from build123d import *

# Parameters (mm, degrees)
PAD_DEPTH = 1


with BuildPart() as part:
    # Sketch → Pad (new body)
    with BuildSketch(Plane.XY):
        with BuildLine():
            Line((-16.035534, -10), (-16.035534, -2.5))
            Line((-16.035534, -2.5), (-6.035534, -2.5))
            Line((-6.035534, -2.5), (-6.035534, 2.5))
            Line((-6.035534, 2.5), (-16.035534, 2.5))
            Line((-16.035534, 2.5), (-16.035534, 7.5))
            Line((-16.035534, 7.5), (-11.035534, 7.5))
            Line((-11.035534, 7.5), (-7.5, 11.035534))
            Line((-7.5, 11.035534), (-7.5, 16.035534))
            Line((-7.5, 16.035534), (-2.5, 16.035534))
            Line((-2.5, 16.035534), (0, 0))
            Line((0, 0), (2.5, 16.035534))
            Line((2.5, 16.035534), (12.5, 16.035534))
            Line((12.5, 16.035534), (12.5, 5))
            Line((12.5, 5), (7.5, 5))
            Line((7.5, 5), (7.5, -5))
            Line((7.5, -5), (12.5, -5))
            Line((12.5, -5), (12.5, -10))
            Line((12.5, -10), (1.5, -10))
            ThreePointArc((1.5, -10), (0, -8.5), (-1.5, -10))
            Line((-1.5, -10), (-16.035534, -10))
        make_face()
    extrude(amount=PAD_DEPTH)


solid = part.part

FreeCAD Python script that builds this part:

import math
import FreeCAD as App
import Part
import Sketcher

V = App.Vector
Q = App.Units.Quantity

doc = App.newDocument("Part")
body = doc.addObject("PartDesign::Body", "Body")

# Sketch on XY plane
sketch1 = body.newObject("Sketcher::SketchObject", "Sketch")
sketch1.AttachmentSupport = (doc.getObject("XY_Plane"), [""])
sketch1.MapMode = "FlatFace"
sketch1.addGeometry([
    Part.LineSegment(V(-16, -2.5, 0), V(-16, -10, 0)),  # 0
    Part.LineSegment(V(-16, -10, 0), V(-1.5, -10, 0)),  # 1
    Part.ArcOfCircle(Part.Circle(V(0, -10, 0), V(0, 0, 1), 1.5), math.radians(0), math.radians(180)),  # 2
    Part.LineSegment(V(1.5, -10, 0), V(12.5, -10, 0)),  # 3
    Part.LineSegment(V(12.5, -10, 0), V(12.5, -5, 0)),  # 4
    Part.LineSegment(V(12.5, -5, 0), V(7.5, -5, 0)),  # 5
    Part.LineSegment(V(7.5, -5, 0), V(7.5, 5, 0)),  # 6
    Part.LineSegment(V(7.5, 5, 0), V(12.5, 5, 0)),  # 7
    Part.LineSegment(V(12.5, 5, 0), V(12.5, 16, 0)),  # 8
    Part.LineSegment(V(12.5, 16, 0), V(2.5, 16, 0)),  # 9
    Part.LineSegment(V(2.5, 16, 0), V(0, 0, 0)),  # 10
    Part.LineSegment(V(0, 0, 0), V(-2.5, 16, 0)),  # 11
    Part.LineSegment(V(-2.5, 16, 0), V(-7.5, 16, 0)),  # 12
    Part.LineSegment(V(-7.5, 16, 0), V(-7.5, 11, 0)),  # 13
    Part.LineSegment(V(-7.5, 11, 0), V(-11, 7.5, 0)),  # 14
    Part.LineSegment(V(-11, 7.5, 0), V(-16, 7.5, 0)),  # 15
    Part.LineSegment(V(-16, 7.5, 0), V(-16, 2.5, 0)),  # 16
    Part.LineSegment(V(-16, 2.5, 0), V(-6, 2.5, 0)),  # 17
    Part.LineSegment(V(-6, 2.5, 0), V(-6, -2.5, 0)),  # 18
    Part.LineSegment(V(-6, -2.5, 0), V(-16, -2.5, 0)),  # 19
], False)
sketch1.addConstraint([
    Sketcher.Constraint("Coincident", 0, 2, 1, 1),
    Sketcher.Constraint("Coincident", 1, 2, 2, 2),
    Sketcher.Constraint("Coincident", 2, 1, 3, 1),
    Sketcher.Constraint("Coincident", 3, 2, 4, 1),
    Sketcher.Constraint("Coincident", 4, 2, 5, 1),
    Sketcher.Constraint("Coincident", 5, 2, 6, 1),
    Sketcher.Constraint("Coincident", 6, 2, 7, 1),
    Sketcher.Constraint("Coincident", 7, 2, 8, 1),
    Sketcher.Constraint("Coincident", 8, 2, 9, 1),
    Sketcher.Constraint("Coincident", 9, 2, 10, 1),
    Sketcher.Constraint("Coincident", 10, 2, 11, 1),
    Sketcher.Constraint("Coincident", 11, 2, 12, 1),
    Sketcher.Constraint("Coincident", 12, 2, 13, 1),
    Sketcher.Constraint("Coincident", 13, 2, 14, 1),
    Sketcher.Constraint("Coincident", 14, 2, 15, 1),
    Sketcher.Constraint("Coincident", 15, 2, 16, 1),
    Sketcher.Constraint("Coincident", 16, 2, 17, 1),
    Sketcher.Constraint("Coincident", 17, 2, 18, 1),
    Sketcher.Constraint("Coincident", 18, 2, 19, 1),
    Sketcher.Constraint("Coincident", 19, 2, 0, 1),
    Sketcher.Constraint("Vertical", 0),
    Sketcher.Constraint("Horizontal", 1),
    Sketcher.Constraint("Horizontal", 3),
    Sketcher.Constraint("Vertical", 4),
    Sketcher.Constraint("Horizontal", 5),
    Sketcher.Constraint("Vertical", 6),
    Sketcher.Constraint("Horizontal", 7),
    Sketcher.Constraint("Vertical", 8),
    Sketcher.Constraint("Horizontal", 9),
    Sketcher.Constraint("Horizontal", 12),
    Sketcher.Constraint("Vertical", 13),
    Sketcher.Constraint("Horizontal", 15),
    Sketcher.Constraint("Vertical", 16),
    Sketcher.Constraint("Horizontal", 17),
    Sketcher.Constraint("Vertical", 18),
    Sketcher.Constraint("Horizontal", 19),
    Sketcher.Constraint("Coincident", 10, 2, -1, 1),
    Sketcher.Constraint("Symmetric", 1, 2, 2, 1, -2),
    Sketcher.Constraint("Symmetric", 9, 2, 11, 2, -2),
    Sketcher.Constraint("Symmetric", 4, 2, 7, 2, -1),
    Sketcher.Constraint("Symmetric", 16, 2, 19, 2, -1),
    Sketcher.Constraint("Horizontal", 2, 3, 0, 2),
    Sketcher.Constraint("Equal", 7, 12),
    Sketcher.Constraint("Equal", 12, 15),
    Sketcher.Constraint("Equal", 9, 17),
    Sketcher.Constraint("Equal", 15, 4),
    Sketcher.Constraint("Equal", 19, 6),
    Sketcher.Constraint("Equal", 4, 13),
    Sketcher.Constraint("Equal", 13, 16),
    Sketcher.Constraint("Equal", 16, 18),
    Sketcher.Constraint("Radius", 2, 1.5),
    Sketcher.Constraint("DistanceX", 3, 1, 3, 2, 11.0),
    Sketcher.Constraint("DistanceX", 5, 2, 5, 1, 5.0),
    Sketcher.Constraint("DistanceX", 9, 2, 9, 1, 10.0),
    Sketcher.Constraint("Angle", 14, Q("-135 deg")),
    Sketcher.Constraint("Distance", 14, 5.0),
])
pad1 = body.newObject("PartDesign::Pad", "Pad")
pad1.Profile = sketch1
pad1.Length = 1

doc.recompute()
